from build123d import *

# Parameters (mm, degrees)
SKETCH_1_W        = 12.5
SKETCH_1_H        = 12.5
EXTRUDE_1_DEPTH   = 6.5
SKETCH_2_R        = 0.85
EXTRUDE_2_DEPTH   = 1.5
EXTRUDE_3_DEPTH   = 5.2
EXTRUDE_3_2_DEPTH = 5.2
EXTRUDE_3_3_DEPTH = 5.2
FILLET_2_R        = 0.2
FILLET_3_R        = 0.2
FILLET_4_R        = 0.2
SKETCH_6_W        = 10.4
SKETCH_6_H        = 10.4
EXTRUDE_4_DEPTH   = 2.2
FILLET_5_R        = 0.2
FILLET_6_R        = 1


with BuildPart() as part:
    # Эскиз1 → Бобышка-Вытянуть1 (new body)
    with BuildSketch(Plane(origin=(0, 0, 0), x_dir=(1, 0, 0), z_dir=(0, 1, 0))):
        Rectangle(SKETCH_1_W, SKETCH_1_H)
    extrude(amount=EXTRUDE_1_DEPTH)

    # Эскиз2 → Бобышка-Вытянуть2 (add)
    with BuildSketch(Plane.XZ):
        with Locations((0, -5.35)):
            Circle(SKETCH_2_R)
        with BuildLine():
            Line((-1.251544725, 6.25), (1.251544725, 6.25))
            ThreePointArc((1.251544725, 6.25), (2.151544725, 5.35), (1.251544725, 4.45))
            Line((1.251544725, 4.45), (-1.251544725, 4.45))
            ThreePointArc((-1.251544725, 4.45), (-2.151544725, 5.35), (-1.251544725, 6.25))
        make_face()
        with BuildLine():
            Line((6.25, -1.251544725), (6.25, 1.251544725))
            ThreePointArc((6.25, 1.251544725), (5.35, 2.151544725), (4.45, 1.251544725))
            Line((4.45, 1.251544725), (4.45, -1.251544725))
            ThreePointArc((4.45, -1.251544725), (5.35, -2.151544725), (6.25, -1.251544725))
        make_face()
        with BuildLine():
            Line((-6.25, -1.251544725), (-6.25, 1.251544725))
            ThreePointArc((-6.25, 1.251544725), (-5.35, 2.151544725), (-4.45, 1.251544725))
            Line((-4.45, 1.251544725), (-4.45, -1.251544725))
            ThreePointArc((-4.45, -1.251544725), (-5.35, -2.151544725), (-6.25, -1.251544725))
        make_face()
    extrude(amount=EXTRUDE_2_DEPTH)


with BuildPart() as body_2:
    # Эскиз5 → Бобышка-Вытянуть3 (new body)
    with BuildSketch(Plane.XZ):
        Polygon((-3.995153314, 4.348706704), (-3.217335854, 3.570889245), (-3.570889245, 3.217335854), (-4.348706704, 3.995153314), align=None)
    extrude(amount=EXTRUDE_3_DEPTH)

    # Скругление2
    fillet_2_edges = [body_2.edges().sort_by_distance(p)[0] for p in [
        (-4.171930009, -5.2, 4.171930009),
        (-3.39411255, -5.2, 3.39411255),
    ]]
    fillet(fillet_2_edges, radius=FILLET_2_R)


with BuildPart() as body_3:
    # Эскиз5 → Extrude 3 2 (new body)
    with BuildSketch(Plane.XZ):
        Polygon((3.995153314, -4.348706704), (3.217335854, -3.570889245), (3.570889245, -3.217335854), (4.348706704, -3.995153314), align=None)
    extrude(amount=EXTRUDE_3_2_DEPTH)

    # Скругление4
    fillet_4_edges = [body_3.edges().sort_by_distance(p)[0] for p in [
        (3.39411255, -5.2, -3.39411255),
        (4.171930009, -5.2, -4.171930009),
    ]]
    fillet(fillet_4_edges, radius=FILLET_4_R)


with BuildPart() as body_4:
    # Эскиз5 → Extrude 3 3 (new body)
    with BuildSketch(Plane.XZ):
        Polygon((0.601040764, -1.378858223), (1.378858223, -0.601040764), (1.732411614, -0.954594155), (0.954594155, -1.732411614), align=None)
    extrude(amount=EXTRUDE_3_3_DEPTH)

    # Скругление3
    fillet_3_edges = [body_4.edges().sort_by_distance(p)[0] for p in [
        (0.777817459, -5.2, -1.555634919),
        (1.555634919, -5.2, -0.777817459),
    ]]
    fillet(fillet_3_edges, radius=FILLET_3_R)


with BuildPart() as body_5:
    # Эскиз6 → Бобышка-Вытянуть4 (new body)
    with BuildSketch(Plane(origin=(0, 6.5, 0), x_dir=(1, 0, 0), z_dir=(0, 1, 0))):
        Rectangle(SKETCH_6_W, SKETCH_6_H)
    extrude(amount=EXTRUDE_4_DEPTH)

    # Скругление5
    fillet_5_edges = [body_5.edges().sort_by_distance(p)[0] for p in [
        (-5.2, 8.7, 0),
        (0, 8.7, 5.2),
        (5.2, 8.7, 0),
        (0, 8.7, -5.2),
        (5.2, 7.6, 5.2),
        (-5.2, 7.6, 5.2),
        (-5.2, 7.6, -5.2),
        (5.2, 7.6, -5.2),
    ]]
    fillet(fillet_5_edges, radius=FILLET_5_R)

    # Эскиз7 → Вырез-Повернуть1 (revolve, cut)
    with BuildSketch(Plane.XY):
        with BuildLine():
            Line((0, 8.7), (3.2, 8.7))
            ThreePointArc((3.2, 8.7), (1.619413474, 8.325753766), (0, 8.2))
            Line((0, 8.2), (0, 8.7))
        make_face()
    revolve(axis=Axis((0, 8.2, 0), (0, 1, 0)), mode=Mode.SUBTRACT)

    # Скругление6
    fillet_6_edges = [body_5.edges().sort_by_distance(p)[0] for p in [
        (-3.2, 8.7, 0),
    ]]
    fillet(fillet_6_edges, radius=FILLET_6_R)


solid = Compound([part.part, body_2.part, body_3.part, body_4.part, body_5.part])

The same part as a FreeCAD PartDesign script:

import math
import FreeCAD as App
import Part
import Sketcher
Q = App.Units.Quantity


def edges_at(feature, points):
    """Names of the edges that pass closest to the given points."""
    edges = feature.Shape.Edges
    near = lambda p: min(range(len(edges)), key=lambda i: edges[i].distToShape(Part.Vertex(*p))[0])
    return sorted({f"Edge{near(p) + 1}" for p in points})


def add_polygon(sketch, points):
    """Adds a closed chain of lines whose ends are joined by coincident constraints."""
    first, n = sketch.GeometryCount, len(points)
    for a, b in zip(points, points[1:] + points[:1]):
        sketch.addGeometry(Part.LineSegment(App.Vector(*a, 0), App.Vector(*b, 0)), False)
    for i in range(n):
        sketch.addConstraint(Sketcher.Constraint("Coincident", first + i, 2, first + (i + 1) % n, 1))

doc = App.newDocument("Part")
body = doc.addObject("PartDesign::Body", "Body")

# Sketch on XZ plane
sketch1 = body.newObject("Sketcher::SketchObject", "Sketch")
sketch1.AttachmentSupport = (doc.getObject("XZ_Plane"), [""])
sketch1.MapMode = "FlatFace"
add_polygon(sketch1, [(-6, -6), (-6, 6), (6, 6), (6, -6)])  # lines 0-3
sketch1.addConstraint(Sketcher.Constraint("Vertical", 0))
sketch1.addConstraint(Sketcher.Constraint("Horizontal", 1))
sketch1.addConstraint(Sketcher.Constraint("Vertical", 2))
sketch1.addConstraint(Sketcher.Constraint("Horizontal", 3))
sketch1.addConstraint(Sketcher.Constraint("Symmetric", 0, 2, 2, 2, -1, 1))
sketch1.addConstraint(Sketcher.Constraint("Equal", 3, 0))
sketch1.addConstraint(Sketcher.Constraint("DistanceX", 1, 1, 1, 2, Q("12.5 mm")))
pad1 = body.newObject("PartDesign::Pad", "Pad")
pad1.Profile = sketch1
pad1.Length = 6.5
pad1.Reversed = True

# Sketch on XZ plane
sketch2 = body.newObject("Sketcher::SketchObject", "Sketch001")
sketch2.AttachmentSupport = (doc.getObject("XZ_Plane"), [""])
sketch2.MapMode = "FlatFace"
sketch2.addGeometry(Part.Circle(App.Vector(0, -5.3, 0), App.Vector(0, 0, 1), 0.8), False)
sketch2.addGeometry(Part.LineSegment(App.Vector(1.3, 6.2, 0), App.Vector(-1.3, 6.2, 0)), False)
sketch2.addGeometry(Part.ArcOfCircle(Part.Circle(App.Vector(-1.3, 5.3, 0), App.Vector(0, 0, 1), 0.9), math.radians(90), math.radians(270)), False)
sketch2.addGeometry(Part.LineSegment(App.Vector(-1.3, 4.5, 0), App.Vector(1.3, 4.5, 0)), False)
sketch2.addGeometry(Part.ArcOfCircle(Part.Circle(App.Vector(1.3, 5.3, 0), App.Vector(0, 0, 1), 0.9), math.radians(-90), math.radians(90)), False)
sketch2.addGeometry(Part.LineSegment(App.Vector(6.2, -1.3, 0), App.Vector(6.2, 1.3, 0)), False)
sketch2.addGeometry(Part.ArcOfCircle(Part.Circle(App.Vector(5.3, 1.3, 0), App.Vector(0, 0, 1), 0.9), math.radians(0), math.radians(180)), False)
sketch2.addGeometry(Part.LineSegment(App.Vector(4.5, 1.3, 0), App.Vector(4.5, -1.3, 0)), False)
sketch2.addGeometry(Part.ArcOfCircle(Part.Circle(App.Vector(5.3, -1.3, 0), App.Vector(0, 0, 1), 0.9), math.radians(180), math.radians(360)), False)
sketch2.addGeometry(Part.LineSegment(App.Vector(-6.2, 1.3, 0), App.Vector(-6.2, -1.3, 0)), False)
sketch2.addGeometry(Part.ArcOfCircle(Part.Circle(App.Vector(-5.3, -1.3, 0), App.Vector(0, 0, 1), 0.9), math.radians(180), math.radians(360)), False)
sketch2.addGeometry(Part.LineSegment(App.Vector(-4.5, -1.3, 0), App.Vector(-4.5, 1.3, 0)), False)
sketch2.addGeometry(Part.ArcOfCircle(Part.Circle(App.Vector(-5.3, 1.3, 0), App.Vector(0, 0, 1), 0.9), math.radians(0), math.radians(180)), False)
sketch2.addConstraint(Sketcher.Constraint("Tangent", 1, 2, 2, 1))
sketch2.addConstraint(Sketcher.Constraint("Tangent", 2, 2, 3, 1))
sketch2.addConstraint(Sketcher.Constraint("Tangent", 3, 2, 4, 1))
sketch2.addConstraint(Sketcher.Constraint("Tangent", 4, 2, 1, 1))
sketch2.addConstraint(Sketcher.Constraint("Tangent", 5, 2, 6, 1))
sketch2.addConstraint(Sketcher.Constraint("Tangent", 6, 2, 7, 1))
sketch2.addConstraint(Sketcher.Constraint("Tangent", 7, 2, 8, 1))
sketch2.addConstraint(Sketcher.Constraint("Tangent", 8, 2, 5, 1))
sketch2.addConstraint(Sketcher.Constraint("Tangent", 9, 2, 10, 1))
sketch2.addConstraint(Sketcher.Constraint("Tangent", 10, 2, 11, 1))
sketch2.addConstraint(Sketcher.Constraint("Tangent", 11, 2, 12, 1))
sketch2.addConstraint(Sketcher.Constraint("Tangent", 12, 2, 9, 1))
sketch2.addConstraint(Sketcher.Constraint("Horizontal", 1))
sketch2.addConstraint(Sketcher.Constraint("Horizontal", 3))
sketch2.addConstraint(Sketcher.Constraint("Vertical", 5))
sketch2.addConstraint(Sketcher.Constraint("Vertical", 7))
sketch2.addConstraint(Sketcher.Constraint("Vertical", 9))
sketch2.addConstraint(Sketcher.Constraint("Vertical", 11))
sketch2.addConstraint(Sketcher.Constraint("Equal", 4, 6))
sketch2.addConstraint(Sketcher.Constraint("Equal", 8, 10))
sketch2.addConstraint(Sketcher.Constraint("Symmetric", 6, 3, 10, 3, -1, 1))
sketch2.addConstraint(Sketcher.Constraint("PointOnObject", 0, 3, -2))
sketch2.addConstraint(Sketcher.Constraint("Horizontal", 8, 3, 10, 3))
sketch2.addConstraint(Sketcher.Constraint("Horizontal", 6, 3, 12, 3))
sketch2.addConstraint(Sketcher.Constraint("Equal", 3, 5))
sketch2.addConstraint(Sketcher.Constraint("Diameter", 0, Q("1.7 mm")))
sketch2.addConstraint(Sketcher.Constraint("Radius", 2, Q("0.9 mm")))
sketch2.addConstraint(Sketcher.Constraint("DistanceY", 0, 3, 2, 3, Q("10.7 mm")))
sketch2.addConstraint(Sketcher.Constraint("DistanceX", 10, 3, 8, 3, Q("10.7 mm")))
sketch2.addConstraint(Sketcher.Constraint("DistanceY", 0, 3, -1, 1, Q("5.35 mm")))
sketch2.addConstraint(Sketcher.Constraint("DistanceX", 1, 2, 1, 1, Q("2.503089 mm")))
sketch2.addConstraint(Sketcher.Constraint("DistanceX", 2, 3, -1, 1, Q("1.251545 mm")))
pad2 = body.newObject("PartDesign::Pad", "Pad001")
pad2.Profile = sketch2
pad2.Length = 1.5
body2 = doc.addObject("PartDesign::Body", "Body001")

# Sketch on XZ plane
sketch3 = body2.newObject("Sketcher::SketchObject", "Sketch002")
sketch3.AttachmentSupport = (doc.getObject("XZ_Plane001"), [""])
sketch3.MapMode = "FlatFace"
add_polygon(sketch3, [(-3.22, 3.57), (-4, 4.35), (-4.35, 4), (-3.57, 3.22)])  # lines 0-3
sketch3.addConstraint(Sketcher.Constraint("Perpendicular", 0, 1))
sketch3.addConstraint(Sketcher.Constraint("Perpendicular", 1, 2))
sketch3.addConstraint(Sketcher.Constraint("Perpendicular", 2, 3))
sketch3.addConstraint(Sketcher.Constraint("Angle", 0, Q("135 deg")))
sketch3.addConstraint(Sketcher.Constraint("Distance", 0, Q("1.1 mm")))
sketch3.addConstraint(Sketcher.Constraint("Distance", 1, Q("0.5 mm")))
sketch3.addConstraint(Sketcher.Constraint("DistanceX", 2, 2, -1, 1, Q("3.570889 mm")))
sketch3.addConstraint(Sketcher.Constraint("DistanceY", -1, 1, 3, 2, Q("3.570889 mm")))
pad3 = body2.newObject("PartDesign::Pad", "Pad002")
pad3.Profile = sketch3
pad3.Length = 5.2
doc.recompute()

fillet = body2.newObject("PartDesign::Fillet", "Fillet")
fillet.Base = (pad3, edges_at(pad3, [(-4.172, -5.2, 4.172), (-3.394, -5.2, 3.394)]))
fillet.Radius = 0.2
body3 = doc.addObject("PartDesign::Body", "Body002")

# Sketch on XZ plane
sketch4 = body3.newObject("Sketcher::SketchObject", "Sketch003")
sketch4.AttachmentSupport = (doc.getObject("XZ_Plane002"), [""])
sketch4.MapMode = "FlatFace"
add_polygon(sketch4, [(3.22, -3.57), (4, -4.35), (4.35, -4), (3.57, -3.22)])  # lines 0-3
sketch4.addConstraint(Sketcher.Constraint("Perpendicular", 0, 1))
sketch4.addConstraint(Sketcher.Constraint("Perpendicular", 1, 2))
sketch4.addConstraint(Sketcher.Constraint("Perpendicular", 2, 3))
sketch4.addConstraint(Sketcher.Constraint("Angle", 0, Q("-45 deg")))
sketch4.addConstraint(Sketcher.Constraint("Distance", 0, Q("1.1 mm")))
sketch4.addConstraint(Sketcher.Constraint("Distance", 1, Q("0.5 mm")))
sketch4.addConstraint(Sketcher.Constraint("DistanceX", -1, 1, 2, 2, Q("3.570889 mm")))
sketch4.addConstraint(Sketcher.Constraint("DistanceY", 3, 2, -1, 1, Q("3.570889 mm")))
pad4 = body3.newObject("PartDesign::Pad", "Pad003")
pad4.Profile = sketch4
pad4.Length = 5.2
doc.recompute()

fillet2 = body3.newObject("PartDesign::Fillet", "Fillet001")
fillet2.Base = (pad4, edges_at(pad4, [(3.394, -5.2, -3.394), (4.172, -5.2, -4.172)]))
fillet2.Radius = 0.2
body4 = doc.addObject("PartDesign::Body", "Body003")

# Sketch on XZ plane
sketch5 = body4.newObject("Sketcher::SketchObject", "Sketch004")
sketch5.AttachmentSupport = (doc.getObject("XZ_Plane003"), [""])
sketch5.MapMode = "FlatFace"
add_polygon(sketch5, [(1.4, -0.6), (0.6, -1.4), (1, -1.7), (1.7, -1)])  # lines 0-3
sketch5.addConstraint(Sketcher.Constraint("Perpendicular", 0, 1))
sketch5.addConstraint(Sketcher.Constraint("Perpendicular", 1, 2))
sketch5.addConstraint(Sketcher.Constraint("Perpendicular", 2, 3))
sketch5.addConstraint(Sketcher.Constraint("Angle", 0, Q("-135 deg")))
sketch5.addConstraint(Sketcher.Constraint("Distance", 0, Q("1.1 mm")))
sketch5.addConstraint(Sketcher.Constraint("Distance", 1, Q("0.5 mm")))
sketch5.addConstraint(Sketcher.Constraint("DistanceX", -1, 1, 0, 2, Q("0.601041 mm")))
sketch5.addConstraint(Sketcher.Constraint("DistanceY", 0, 2, -1, 1, Q("1.378858 mm")))
pad5 = body4.newObject("PartDesign::Pad", "Pad004")
pad5.Profile = sketch5
pad5.Length = 5.2
doc.recompute()

fillet3 = body4.newObject("PartDesign::Fillet", "Fillet002")
fillet3.Base = (pad5, edges_at(pad5, [(0.778, -5.2, -1.556), (1.556, -5.2, -0.778)]))
fillet3.Radius = 0.2
body5 = doc.addObject("PartDesign::Body", "Body004")

# Sketch on XZ plane
sketch6 = body5.newObject("Sketcher::SketchObject", "Sketch005")
sketch6.AttachmentSupport = (doc.getObject("XZ_Plane004"), [""])
sketch6.MapMode = "FlatFace"
sketch6.AttachmentOffset = App.Placement(App.Vector(0, 0, -6.5), App.Rotation())
add_polygon(sketch6, [(-5, -5), (-5, 5), (5, 5), (5, -5)])  # lines 0-3
sketch6.addConstraint(Sketcher.Constraint("Vertical", 0))
sketch6.addConstraint(Sketcher.Constraint("Horizontal", 1))
sketch6.addConstraint(Sketcher.Constraint("Vertical", 2))
sketch6.addConstraint(Sketcher.Constraint("Horizontal", 3))
sketch6.addConstraint(Sketcher.Constraint("Symmetric", 0, 2, 2, 2, -1, 1))
sketch6.addConstraint(Sketcher.Constraint("Equal", 3, 0))
sketch6.addConstraint(Sketcher.Constraint("DistanceX", 1, 1, 1, 2, Q("10.4 mm")))
pad6 = body5.newObject("PartDesign::Pad", "Pad005")
pad6.Profile = sketch6
pad6.Length = 2.2
pad6.Reversed = True
doc.recompute()

fillet4 = body5.newObject("PartDesign::Fillet", "Fillet003")
fillet4.Base = (pad6, edges_at(pad6, [
    (-5.2, 8.7, 0),
    (0, 8.7, 5.2),
    (5.2, 8.7, 0),
    (0, 8.7, -5.2),
    (5.2, 7.6, 5.2),
    (-5.2, 7.6, 5.2),
    (-5.2, 7.6, -5.2),
    (5.2, 7.6, -5.2),
]))
fillet4.Radius = 0.2

# Sketch on XY plane
sketch7 = body5.newObject("Sketcher::SketchObject", "Sketch006")
sketch7.AttachmentSupport = (doc.getObject("XY_Plane004"), [""])
sketch7.MapMode = "FlatFace"
sketch7.addGeometry(Part.LineSegment(App.Vector(3.2, 8.7, 0), App.Vector(0, 8.7, 0)), False)
sketch7.addGeometry(Part.LineSegment(App.Vector(0, 8.7, 0), App.Vector(0, 8.2, 0)), False)
sketch7.addGeometry(Part.ArcOfCircle(Part.Circle(App.Vector(0, 18.7, 0), App.Vector(0, 0, 1), 10.5), math.radians(-90), math.radians(-72.24)), False)
sketch7.addConstraint(Sketcher.Constraint("Coincident", 0, 2, 1, 1))
sketch7.addConstraint(Sketcher.Constraint("Coincident", 1, 2, 2, 1))
sketch7.addConstraint(Sketcher.Constraint("Coincident", 2, 2, 0, 1))
sketch7.addConstraint(Sketcher.Constraint("Horizontal", 0))
sketch7.addConstraint(Sketcher.Constraint("Vertical", 1))
sketch7.addConstraint(Sketcher.Constraint("PointOnObject", 2, 3, -2))
sketch7.addConstraint(Sketcher.Constraint("PointOnObject", 0, 2, -2))
sketch7.addConstraint(Sketcher.Constraint("Radius", 2, Q("10.49 mm")))
sketch7.addConstraint(Sketcher.Constraint("DistanceX", 0, 2, 0, 1, Q("3.2 mm")))
sketch7.addConstraint(Sketcher.Constraint("DistanceY", -1, 1, 0, 2, Q("8.7 mm")))
groove = body5.newObject("PartDesign::Groove", "Groove")
groove.Profile = sketch7
groove.ReferenceAxis = (sketch7, ["V_Axis"])
groove.Angle = 360
doc.recompute()

fillet5 = body5.newObject("PartDesign::Fillet", "Fillet004")
fillet5.Base = (groove, edges_at(groove, [(-3.2, 8.7, 0)]))
fillet5.Radius = 1

doc.recompute()
